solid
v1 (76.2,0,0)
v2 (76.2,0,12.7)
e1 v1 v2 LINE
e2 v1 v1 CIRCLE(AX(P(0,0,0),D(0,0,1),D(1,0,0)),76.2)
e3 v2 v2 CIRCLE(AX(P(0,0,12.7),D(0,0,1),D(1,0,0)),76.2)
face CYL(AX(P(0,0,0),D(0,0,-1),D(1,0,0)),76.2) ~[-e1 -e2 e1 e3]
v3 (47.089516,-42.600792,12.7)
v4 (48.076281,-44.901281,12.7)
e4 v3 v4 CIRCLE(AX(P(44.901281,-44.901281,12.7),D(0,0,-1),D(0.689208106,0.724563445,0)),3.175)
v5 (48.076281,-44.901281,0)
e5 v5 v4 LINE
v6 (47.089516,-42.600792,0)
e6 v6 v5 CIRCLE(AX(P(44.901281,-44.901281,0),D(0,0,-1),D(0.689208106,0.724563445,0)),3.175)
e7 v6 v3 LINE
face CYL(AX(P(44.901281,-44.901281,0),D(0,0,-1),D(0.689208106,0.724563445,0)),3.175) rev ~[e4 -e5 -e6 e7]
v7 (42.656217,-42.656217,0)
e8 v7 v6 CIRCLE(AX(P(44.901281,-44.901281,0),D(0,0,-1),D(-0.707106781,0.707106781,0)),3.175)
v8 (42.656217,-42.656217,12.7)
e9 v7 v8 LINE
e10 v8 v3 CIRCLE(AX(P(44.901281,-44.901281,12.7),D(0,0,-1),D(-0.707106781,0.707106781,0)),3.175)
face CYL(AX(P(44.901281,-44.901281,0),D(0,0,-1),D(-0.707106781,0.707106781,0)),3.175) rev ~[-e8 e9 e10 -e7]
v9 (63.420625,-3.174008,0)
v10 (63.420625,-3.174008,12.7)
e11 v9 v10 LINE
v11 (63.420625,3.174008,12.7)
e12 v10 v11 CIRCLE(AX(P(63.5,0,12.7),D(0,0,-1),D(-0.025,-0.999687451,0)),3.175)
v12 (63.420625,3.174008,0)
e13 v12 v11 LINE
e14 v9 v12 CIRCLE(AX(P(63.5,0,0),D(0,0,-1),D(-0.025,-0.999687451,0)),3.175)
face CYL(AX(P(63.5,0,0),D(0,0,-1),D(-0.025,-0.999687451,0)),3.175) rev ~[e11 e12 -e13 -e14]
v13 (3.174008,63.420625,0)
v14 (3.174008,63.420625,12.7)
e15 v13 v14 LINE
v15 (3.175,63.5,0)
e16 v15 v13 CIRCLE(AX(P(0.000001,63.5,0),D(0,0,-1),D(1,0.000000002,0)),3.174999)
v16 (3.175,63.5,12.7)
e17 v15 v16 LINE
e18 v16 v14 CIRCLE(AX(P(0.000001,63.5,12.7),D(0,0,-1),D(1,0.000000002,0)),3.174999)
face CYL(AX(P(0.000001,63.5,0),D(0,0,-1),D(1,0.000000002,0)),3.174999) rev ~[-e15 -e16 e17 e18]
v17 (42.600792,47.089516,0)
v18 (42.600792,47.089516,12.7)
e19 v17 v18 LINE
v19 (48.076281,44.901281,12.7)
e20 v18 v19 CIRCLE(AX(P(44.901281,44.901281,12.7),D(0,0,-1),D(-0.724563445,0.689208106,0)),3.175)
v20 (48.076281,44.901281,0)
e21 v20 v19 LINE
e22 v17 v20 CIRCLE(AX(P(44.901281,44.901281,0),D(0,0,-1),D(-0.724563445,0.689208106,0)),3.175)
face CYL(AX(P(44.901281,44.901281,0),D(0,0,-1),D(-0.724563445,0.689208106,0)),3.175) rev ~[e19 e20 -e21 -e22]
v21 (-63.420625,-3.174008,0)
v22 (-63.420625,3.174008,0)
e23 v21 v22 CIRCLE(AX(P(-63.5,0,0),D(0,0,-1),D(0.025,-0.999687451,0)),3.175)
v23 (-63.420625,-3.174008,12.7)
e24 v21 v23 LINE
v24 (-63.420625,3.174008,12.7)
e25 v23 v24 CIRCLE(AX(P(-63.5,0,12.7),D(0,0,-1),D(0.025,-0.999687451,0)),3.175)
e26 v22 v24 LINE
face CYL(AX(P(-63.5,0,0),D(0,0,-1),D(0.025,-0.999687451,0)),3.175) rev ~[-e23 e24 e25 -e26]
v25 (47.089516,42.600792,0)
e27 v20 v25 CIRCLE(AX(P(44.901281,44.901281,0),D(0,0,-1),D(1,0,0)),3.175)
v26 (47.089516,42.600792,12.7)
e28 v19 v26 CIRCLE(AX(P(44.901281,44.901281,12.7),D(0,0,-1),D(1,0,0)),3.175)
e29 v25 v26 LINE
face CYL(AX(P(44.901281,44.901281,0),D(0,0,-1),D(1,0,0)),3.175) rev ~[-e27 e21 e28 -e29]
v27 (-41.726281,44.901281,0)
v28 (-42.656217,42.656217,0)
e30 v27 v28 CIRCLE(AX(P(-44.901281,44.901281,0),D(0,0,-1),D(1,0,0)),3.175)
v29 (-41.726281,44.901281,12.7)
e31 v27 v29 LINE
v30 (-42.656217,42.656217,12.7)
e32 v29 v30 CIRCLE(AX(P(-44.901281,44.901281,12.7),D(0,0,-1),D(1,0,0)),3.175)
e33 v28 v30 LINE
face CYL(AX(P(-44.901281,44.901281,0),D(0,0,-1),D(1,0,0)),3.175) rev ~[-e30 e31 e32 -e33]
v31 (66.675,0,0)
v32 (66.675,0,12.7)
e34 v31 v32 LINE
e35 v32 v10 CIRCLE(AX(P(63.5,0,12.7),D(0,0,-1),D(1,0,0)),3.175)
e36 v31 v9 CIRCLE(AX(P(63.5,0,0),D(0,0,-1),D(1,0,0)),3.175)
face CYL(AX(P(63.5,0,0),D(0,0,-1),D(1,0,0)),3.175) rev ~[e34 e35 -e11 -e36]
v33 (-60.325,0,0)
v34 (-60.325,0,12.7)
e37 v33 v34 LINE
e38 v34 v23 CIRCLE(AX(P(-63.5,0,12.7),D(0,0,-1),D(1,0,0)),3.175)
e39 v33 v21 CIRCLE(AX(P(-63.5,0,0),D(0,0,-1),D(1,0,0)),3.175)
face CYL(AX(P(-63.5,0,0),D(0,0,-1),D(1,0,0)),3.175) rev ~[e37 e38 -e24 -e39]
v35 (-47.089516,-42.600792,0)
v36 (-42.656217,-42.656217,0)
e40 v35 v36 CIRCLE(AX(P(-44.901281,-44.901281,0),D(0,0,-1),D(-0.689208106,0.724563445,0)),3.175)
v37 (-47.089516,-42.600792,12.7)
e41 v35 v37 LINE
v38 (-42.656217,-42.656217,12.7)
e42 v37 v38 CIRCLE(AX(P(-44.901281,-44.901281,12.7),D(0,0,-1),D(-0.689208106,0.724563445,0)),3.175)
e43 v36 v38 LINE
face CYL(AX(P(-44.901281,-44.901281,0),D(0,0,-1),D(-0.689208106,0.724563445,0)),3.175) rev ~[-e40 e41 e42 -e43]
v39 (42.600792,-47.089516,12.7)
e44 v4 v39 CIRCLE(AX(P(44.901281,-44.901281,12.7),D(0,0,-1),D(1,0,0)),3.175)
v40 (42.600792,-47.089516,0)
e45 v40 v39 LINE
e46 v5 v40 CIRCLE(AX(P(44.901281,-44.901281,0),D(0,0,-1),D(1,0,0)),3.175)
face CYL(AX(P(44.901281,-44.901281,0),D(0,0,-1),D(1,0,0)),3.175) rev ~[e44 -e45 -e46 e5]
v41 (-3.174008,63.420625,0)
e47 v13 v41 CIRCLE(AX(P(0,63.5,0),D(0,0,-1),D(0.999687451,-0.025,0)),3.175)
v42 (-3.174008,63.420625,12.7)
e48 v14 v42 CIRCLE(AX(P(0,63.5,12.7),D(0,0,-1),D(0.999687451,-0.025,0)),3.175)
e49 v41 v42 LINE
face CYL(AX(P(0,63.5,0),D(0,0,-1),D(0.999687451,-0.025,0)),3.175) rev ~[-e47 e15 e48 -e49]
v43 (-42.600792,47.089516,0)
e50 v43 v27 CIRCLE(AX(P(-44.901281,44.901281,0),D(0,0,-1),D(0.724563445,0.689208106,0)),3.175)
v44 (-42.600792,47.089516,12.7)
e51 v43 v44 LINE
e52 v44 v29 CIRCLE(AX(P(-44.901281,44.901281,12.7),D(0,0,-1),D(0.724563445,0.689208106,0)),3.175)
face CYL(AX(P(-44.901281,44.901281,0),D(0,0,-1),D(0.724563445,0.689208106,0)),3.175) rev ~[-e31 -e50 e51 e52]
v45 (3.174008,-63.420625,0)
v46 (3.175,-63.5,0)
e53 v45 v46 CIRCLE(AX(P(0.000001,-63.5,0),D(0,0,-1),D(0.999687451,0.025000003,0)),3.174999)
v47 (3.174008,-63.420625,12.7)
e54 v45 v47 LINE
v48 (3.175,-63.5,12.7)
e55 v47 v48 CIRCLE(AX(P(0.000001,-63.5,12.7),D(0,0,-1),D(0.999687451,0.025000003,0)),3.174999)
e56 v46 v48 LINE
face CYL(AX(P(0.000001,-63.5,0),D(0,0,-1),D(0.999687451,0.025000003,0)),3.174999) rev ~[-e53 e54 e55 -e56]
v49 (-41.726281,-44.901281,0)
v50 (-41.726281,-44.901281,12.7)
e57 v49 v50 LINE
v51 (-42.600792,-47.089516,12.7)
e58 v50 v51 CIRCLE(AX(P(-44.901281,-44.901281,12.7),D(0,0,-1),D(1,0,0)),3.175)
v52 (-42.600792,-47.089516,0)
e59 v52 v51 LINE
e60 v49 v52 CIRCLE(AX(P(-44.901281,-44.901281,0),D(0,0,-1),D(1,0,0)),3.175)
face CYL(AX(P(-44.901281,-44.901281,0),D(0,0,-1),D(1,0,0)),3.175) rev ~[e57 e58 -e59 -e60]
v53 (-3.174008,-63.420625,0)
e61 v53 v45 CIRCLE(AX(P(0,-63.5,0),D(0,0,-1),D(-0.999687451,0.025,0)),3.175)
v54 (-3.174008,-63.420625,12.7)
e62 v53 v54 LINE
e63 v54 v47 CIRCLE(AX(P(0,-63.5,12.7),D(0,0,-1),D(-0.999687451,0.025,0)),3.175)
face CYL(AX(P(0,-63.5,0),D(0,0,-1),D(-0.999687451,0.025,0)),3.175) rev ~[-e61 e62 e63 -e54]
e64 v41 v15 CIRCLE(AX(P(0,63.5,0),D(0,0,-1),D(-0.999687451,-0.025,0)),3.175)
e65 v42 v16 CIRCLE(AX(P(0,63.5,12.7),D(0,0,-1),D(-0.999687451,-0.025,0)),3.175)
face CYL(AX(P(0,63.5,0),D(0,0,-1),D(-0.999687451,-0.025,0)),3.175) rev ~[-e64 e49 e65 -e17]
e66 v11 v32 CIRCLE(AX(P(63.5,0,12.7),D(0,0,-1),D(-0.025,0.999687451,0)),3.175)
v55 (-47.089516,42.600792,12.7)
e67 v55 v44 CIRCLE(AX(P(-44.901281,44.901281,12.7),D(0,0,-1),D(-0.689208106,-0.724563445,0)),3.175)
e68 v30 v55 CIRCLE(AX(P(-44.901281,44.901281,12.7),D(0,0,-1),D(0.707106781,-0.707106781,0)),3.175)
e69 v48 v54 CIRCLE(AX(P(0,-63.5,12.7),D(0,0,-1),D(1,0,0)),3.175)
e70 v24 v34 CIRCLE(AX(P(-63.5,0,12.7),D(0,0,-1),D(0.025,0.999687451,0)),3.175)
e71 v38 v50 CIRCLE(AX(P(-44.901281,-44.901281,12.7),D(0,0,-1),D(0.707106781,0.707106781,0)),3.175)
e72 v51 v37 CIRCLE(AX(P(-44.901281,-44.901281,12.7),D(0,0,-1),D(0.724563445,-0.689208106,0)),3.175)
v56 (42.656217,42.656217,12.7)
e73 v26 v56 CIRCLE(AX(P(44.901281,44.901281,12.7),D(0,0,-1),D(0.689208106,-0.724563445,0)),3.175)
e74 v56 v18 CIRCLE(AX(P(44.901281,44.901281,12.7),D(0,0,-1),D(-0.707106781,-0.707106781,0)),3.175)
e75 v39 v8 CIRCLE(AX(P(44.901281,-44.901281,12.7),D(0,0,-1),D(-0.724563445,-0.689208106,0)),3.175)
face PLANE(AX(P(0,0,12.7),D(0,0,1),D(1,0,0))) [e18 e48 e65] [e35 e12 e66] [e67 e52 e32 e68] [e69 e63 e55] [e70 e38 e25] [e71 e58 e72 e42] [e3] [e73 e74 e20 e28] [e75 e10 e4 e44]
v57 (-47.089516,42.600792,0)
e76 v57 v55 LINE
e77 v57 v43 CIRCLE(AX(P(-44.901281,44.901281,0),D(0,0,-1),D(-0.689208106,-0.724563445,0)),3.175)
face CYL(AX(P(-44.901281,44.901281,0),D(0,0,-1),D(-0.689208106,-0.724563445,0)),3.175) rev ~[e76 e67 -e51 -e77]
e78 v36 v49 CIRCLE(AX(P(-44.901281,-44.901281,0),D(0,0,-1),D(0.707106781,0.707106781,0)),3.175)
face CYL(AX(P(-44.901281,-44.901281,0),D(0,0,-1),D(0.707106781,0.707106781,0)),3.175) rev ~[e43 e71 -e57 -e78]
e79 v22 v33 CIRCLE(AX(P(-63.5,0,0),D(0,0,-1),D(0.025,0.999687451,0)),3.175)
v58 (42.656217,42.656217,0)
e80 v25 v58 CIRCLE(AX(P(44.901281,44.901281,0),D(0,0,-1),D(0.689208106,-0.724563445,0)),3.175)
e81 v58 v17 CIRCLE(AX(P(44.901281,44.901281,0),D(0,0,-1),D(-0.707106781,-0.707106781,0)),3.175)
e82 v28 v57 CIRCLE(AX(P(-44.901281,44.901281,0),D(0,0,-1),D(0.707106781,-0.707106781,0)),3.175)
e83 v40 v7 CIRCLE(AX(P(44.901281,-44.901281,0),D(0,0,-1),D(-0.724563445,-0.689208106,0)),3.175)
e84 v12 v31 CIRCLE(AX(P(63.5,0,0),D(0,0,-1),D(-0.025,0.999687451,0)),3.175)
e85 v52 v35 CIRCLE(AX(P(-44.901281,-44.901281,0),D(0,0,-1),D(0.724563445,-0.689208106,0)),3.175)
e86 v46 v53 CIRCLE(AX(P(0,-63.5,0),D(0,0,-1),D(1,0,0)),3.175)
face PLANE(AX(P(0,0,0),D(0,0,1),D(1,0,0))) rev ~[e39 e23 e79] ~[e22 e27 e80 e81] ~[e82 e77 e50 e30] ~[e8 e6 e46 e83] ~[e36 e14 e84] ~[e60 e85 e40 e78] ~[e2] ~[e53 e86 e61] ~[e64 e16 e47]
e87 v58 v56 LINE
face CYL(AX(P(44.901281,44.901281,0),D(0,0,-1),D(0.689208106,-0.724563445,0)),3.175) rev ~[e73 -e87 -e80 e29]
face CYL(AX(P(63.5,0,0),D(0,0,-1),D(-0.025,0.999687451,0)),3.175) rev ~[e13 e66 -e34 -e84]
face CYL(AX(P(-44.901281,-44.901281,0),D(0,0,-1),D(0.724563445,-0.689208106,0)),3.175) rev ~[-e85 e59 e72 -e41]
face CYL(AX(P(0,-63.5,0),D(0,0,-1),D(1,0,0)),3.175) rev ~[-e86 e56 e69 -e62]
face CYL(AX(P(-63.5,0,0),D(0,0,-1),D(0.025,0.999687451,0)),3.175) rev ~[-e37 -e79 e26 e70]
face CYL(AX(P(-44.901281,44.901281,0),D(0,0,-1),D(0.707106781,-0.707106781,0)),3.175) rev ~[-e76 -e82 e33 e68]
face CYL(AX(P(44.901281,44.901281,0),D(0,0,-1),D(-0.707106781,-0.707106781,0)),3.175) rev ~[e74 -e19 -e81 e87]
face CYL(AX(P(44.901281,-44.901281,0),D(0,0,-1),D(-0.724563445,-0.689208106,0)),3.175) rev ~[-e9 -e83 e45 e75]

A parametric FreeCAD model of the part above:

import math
import FreeCAD as App
import Part
import Sketcher
from FreeCAD import Vector
Q = App.Units.Quantity

doc = App.newDocument("Part")
body = doc.addObject("PartDesign::Body", "Body")

sketch1 = body.newObject("Sketcher::SketchObject", "Sketch")
sketch1.AttachmentSupport = (doc.getObject("XY_Plane"), [""])
sketch1.MapMode = "FlatFace"
sketch1.addGeometry([
    Part.Circle(Vector(0, 0, 0), Vector(0, 0, 1), 76.2),
    Part.ArcOfCircle(Part.Circle(Vector(44.901281, 44.901281, 0), Vector(0, 0, 1), 3.175), math.radians(-46.432544), math.radians(0)),
    Part.ArcOfCircle(Part.Circle(Vector(44.901281, 44.901281, 0), Vector(0, 0, 1), 3.175), math.radians(-135), math.radians(-46.432544)),
    Part.ArcOfCircle(Part.Circle(Vector(44.901281, 44.901281, 0), Vector(0, 0, 1), 3.175), math.radians(136.432544), math.radians(225)),
    Part.ArcOfCircle(Part.Circle(Vector(44.901281, 44.901281, 0), Vector(0, 0, 1), 3.175), math.radians(0), math.radians(136.432544)),
    Part.ArcOfCircle(Part.Circle(Vector(63.5, 0, 0), Vector(0, 0, 1), 3.175), math.radians(0), math.radians(91.432544)),
    Part.ArcOfCircle(Part.Circle(Vector(63.5, 0, 0), Vector(0, 0, 1), 3.175), math.radians(-91.432544), math.radians(0)),
    Part.ArcOfCircle(Part.Circle(Vector(63.5, 0, 0), Vector(0, 0, 1), 3.175), math.radians(91.432544), math.radians(268.567456)),
    Part.ArcOfCircle(Part.Circle(Vector(44.901281, -44.901281, 0), Vector(0, 0, 1), 3.175), math.radians(0), math.radians(46.432544)),
    Part.ArcOfCircle(Part.Circle(Vector(44.901281, -44.901281, 0), Vector(0, 0, 1), 3.175), math.radians(-136.432544), math.radians(0)),
    Part.ArcOfCircle(Part.Circle(Vector(44.901281, -44.901281, 0), Vector(0, 0, 1), 3.175), math.radians(135), math.radians(223.567456)),
    Part.ArcOfCircle(Part.Circle(Vector(44.901281, -44.901281, 0), Vector(0, 0, 1), 3.175), math.radians(46.432544), math.radians(135)),
    Part.ArcOfCircle(Part.Circle(Vector(0.000001, -63.5, 0), Vector(0, 0, 1), 3.174999), math.radians(0), math.radians(1.432544)),
    Part.ArcOfCircle(Part.Circle(Vector(0, -63.5, 0), Vector(0, 0, 1), 3.175), math.radians(178.567456), math.radians(360)),
    Part.ArcOfCircle(Part.Circle(Vector(0, -63.5, 0), Vector(0, 0, 1), 3.175), math.radians(1.432544), math.radians(178.567456)),
    Part.ArcOfCircle(Part.Circle(Vector(-44.901281, -44.901281, 0), Vector(0, 0, 1), 3.175), math.radians(133.567456), math.radians(316.432544)),
    Part.ArcOfCircle(Part.Circle(Vector(-44.901281, -44.901281, 0), Vector(0, 0, 1), 3.175), math.radians(45), math.radians(133.567456)),
    Part.ArcOfCircle(Part.Circle(Vector(-44.901281, -44.901281, 0), Vector(0, 0, 1), 3.175), math.radians(0), math.radians(45)),
    Part.ArcOfCircle(Part.Circle(Vector(-44.901281, -44.901281, 0), Vector(0, 0, 1), 3.175), math.radians(-43.567456), math.radians(0)),
    Part.ArcOfCircle(Part.Circle(Vector(-63.5, 0, 0), Vector(0, 0, 1), 3.175), math.radians(88.567456), math.radians(271.432544)),
    Part.ArcOfCircle(Part.Circle(Vector(-63.5, 0, 0), Vector(0, 0, 1), 3.175), math.radians(0), math.radians(88.567456)),
    Part.ArcOfCircle(Part.Circle(Vector(-63.5, 0, 0), Vector(0, 0, 1), 3.175), math.radians(-88.567456), math.radians(0)),
    Part.ArcOfCircle(Part.Circle(Vector(-44.901281, 44.901281, 0), Vector(0, 0, 1), 3.175), math.radians(43.567456), math.radians(226.432544)),
    Part.ArcOfCircle(Part.Circle(Vector(-44.901281, 44.901281, 0), Vector(0, 0, 1), 3.175), math.radians(0), math.radians(43.567456)),
    Part.ArcOfCircle(Part.Circle(Vector(-44.901281, 44.901281, 0), Vector(0, 0, 1), 3.175), math.radians(-45), math.radians(0)),
    Part.ArcOfCircle(Part.Circle(Vector(-44.901281, 44.901281, 0), Vector(0, 0, 1), 3.175), math.radians(-133.567456), math.radians(-45)),
    Part.ArcOfCircle(Part.Circle(Vector(0.000001, 63.5, 0), Vector(0, 0, 1), 3.174999), math.radians(-1.432544), math.radians(0)),
    Part.ArcOfCircle(Part.Circle(Vector(0, 63.5, 0), Vector(0, 0, 1), 3.175), math.radians(-178.567456), math.radians(-1.432544)),
    Part.ArcOfCircle(Part.Circle(Vector(0, 63.5, 0), Vector(0, 0, 1), 3.175), math.radians(0), math.radians(181.432544)),
], False)
sketch1.addConstraint([
    Sketcher.Constraint("Tangent", 1, 1, 2, 2),
    Sketcher.Constraint("Tangent", 2, 1, 3, 2),
    Sketcher.Constraint("Tangent", 3, 1, 4, 2),
    Sketcher.Constraint("Tangent", 4, 1, 1, 2),
    Sketcher.Constraint("Tangent", 5, 1, 6, 2),
    Sketcher.Constraint("Tangent", 6, 1, 7, 2),
    Sketcher.Constraint("Tangent", 7, 1, 5, 2),
    Sketcher.Constraint("Tangent", 8, 1, 9, 2),
    Sketcher.Constraint("Tangent", 9, 1, 10, 2),
    Sketcher.Constraint("Tangent", 10, 1, 11, 2),
    Sketcher.Constraint("Tangent", 11, 1, 8, 2),
    Sketcher.Constraint("Tangent", 12, 1, 13, 2),
    Sketcher.Constraint("Tangent", 13, 1, 14, 2),
    Sketcher.Constraint("Tangent", 14, 1, 12, 2),
    Sketcher.Constraint("Tangent", 15, 1, 16, 2),
    Sketcher.Constraint("Tangent", 16, 1, 17, 2),
    Sketcher.Constraint("Tangent", 17, 1, 18, 2),
    Sketcher.Constraint("Tangent", 18, 1, 15, 2),
    Sketcher.Constraint("Tangent", 19, 1, 20, 2),
    Sketcher.Constraint("Tangent", 20, 1, 21, 2),
    Sketcher.Constraint("Tangent", 21, 1, 19, 2),
    Sketcher.Constraint("Tangent", 22, 1, 23, 2),
    Sketcher.Constraint("Tangent", 23, 1, 24, 2),
    Sketcher.Constraint("Tangent", 24, 1, 25, 2),
    Sketcher.Constraint("Tangent", 25, 1, 22, 2),
    Sketcher.Constraint("Tangent", 26, 1, 27, 2),
    Sketcher.Constraint("Tangent", 27, 1, 28, 2),
    Sketcher.Constraint("Tangent", 28, 1, 26, 2),
    Sketcher.Constraint("Coincident", 0, 3, -1, 1),
    Sketcher.Constraint("Equal", 1, 2),
    Sketcher.Constraint("Equal", 4, 5),
    Sketcher.Constraint("Equal", 7, 8),
    Sketcher.Constraint("Equal", 8, 9),
    Sketcher.Constraint("Equal", 11, 12),
    Sketcher.Constraint("Equal", 14, 15),
    Sketcher.Constraint("Equal", 15, 16),
    Sketcher.Constraint("Equal", 18, 19),
    Sketcher.Constraint("Equal", 21, 22),
    Sketcher.Constraint("Equal", 22, 23),
    Sketcher.Constraint("Equal", 25, 26),
    Sketcher.Constraint("Symmetric", 1, 3, 15, 3, -1, 1),
    Sketcher.Constraint("Symmetric", 5, 3, 19, 3, -1, 1),
    Sketcher.Constraint("Symmetric", 8, 3, 22, 3, -1, 1),
    Sketcher.Constraint("Symmetric", 12, 3, 26, 3, -1, 1),
    Sketcher.Constraint("Symmetric", 8, 3, 15, 3, -2),
    Sketcher.Constraint("Symmetric", 13, 1, 14, 1, -2),
    Sketcher.Constraint("Symmetric", 7, 1, 19, 1, -2),
    Sketcher.Constraint("PointOnObject", 5, 1, -1),
    Sketcher.Constraint("PointOnObject", 20, 1, -1),
    Sketcher.Constraint("Horizontal", 25, 3, 4, 1),
    Sketcher.Constraint("Horizontal", 18, 3, 8, 1),
    Sketcher.Constraint("Horizontal", 14, 3, 12, 1),
    Sketcher.Constraint("Horizontal", 11, 1, 15, 1),
    Sketcher.Constraint("Horizontal", 10, 1, 16, 1),
    Sketcher.Constraint("Horizontal", 8, 1, 17, 1),
    Sketcher.Constraint("Horizontal", 9, 1, 18, 1),
    Sketcher.Constraint("Horizontal", 6, 1, 21, 1),
    Sketcher.Constraint("Horizontal", 3, 1, 22, 1),
    Sketcher.Constraint("Horizontal", 4, 1, 23, 1),
    Sketcher.Constraint("Horizontal", 2, 1, 24, 1),
    Sketcher.Constraint("Horizontal", 1, 1, 25, 1),
    Sketcher.Constraint("Horizontal", 26, 1, 27, 1),
    Sketcher.Constraint("Horizontal", 27, 3, 28, 1),
    Sketcher.Constraint("Vertical", 6, 1, 7, 1),
    Sketcher.Constraint("Vertical", 3, 1, 9, 1),
    Sketcher.Constraint("Vertical", 2, 1, 10, 1),
    Sketcher.Constraint("Vertical", 1, 1, 11, 1),
    Sketcher.Constraint("Vertical", 14, 1, 26, 1),
    Sketcher.Constraint("Diameter", 0, Q("6 in")),
    Sketcher.Constraint("Radius", 1, Q("0.125 in")),
    Sketcher.Constraint("DistanceX", -1, 1, 5, 3, Q("2.5 in")),
    Sketcher.Constraint("DistanceY", 12, 3, -1, 1, Q("2.5 in")),
    Sketcher.Constraint("DistanceX", 2, 1, 1, 1, 4.4333),
    Sketcher.Constraint("DistanceY", 2, 1, 3, 1, 4.4333),
    Sketcher.Constraint("DistanceX", -1, 1, 1, 3, 44.901281),
    Sketcher.Constraint("DistanceY", -1, 1, 1, 3, 44.901281),
    Sketcher.Constraint("DistanceY", -1, 1, 1, 1, 42.600792),
    Sketcher.Constraint("DistanceX", 13, 1, 12, 3, 3.174008),
    Sketcher.Constraint("DistanceX", -1, 1, 6, 1, 63.420625),
])
pad1 = body.newObject("PartDesign::Pad", "Pad")
pad1.Profile = sketch1
pad1.Length = Q("0.5 in")

doc.recompute()
